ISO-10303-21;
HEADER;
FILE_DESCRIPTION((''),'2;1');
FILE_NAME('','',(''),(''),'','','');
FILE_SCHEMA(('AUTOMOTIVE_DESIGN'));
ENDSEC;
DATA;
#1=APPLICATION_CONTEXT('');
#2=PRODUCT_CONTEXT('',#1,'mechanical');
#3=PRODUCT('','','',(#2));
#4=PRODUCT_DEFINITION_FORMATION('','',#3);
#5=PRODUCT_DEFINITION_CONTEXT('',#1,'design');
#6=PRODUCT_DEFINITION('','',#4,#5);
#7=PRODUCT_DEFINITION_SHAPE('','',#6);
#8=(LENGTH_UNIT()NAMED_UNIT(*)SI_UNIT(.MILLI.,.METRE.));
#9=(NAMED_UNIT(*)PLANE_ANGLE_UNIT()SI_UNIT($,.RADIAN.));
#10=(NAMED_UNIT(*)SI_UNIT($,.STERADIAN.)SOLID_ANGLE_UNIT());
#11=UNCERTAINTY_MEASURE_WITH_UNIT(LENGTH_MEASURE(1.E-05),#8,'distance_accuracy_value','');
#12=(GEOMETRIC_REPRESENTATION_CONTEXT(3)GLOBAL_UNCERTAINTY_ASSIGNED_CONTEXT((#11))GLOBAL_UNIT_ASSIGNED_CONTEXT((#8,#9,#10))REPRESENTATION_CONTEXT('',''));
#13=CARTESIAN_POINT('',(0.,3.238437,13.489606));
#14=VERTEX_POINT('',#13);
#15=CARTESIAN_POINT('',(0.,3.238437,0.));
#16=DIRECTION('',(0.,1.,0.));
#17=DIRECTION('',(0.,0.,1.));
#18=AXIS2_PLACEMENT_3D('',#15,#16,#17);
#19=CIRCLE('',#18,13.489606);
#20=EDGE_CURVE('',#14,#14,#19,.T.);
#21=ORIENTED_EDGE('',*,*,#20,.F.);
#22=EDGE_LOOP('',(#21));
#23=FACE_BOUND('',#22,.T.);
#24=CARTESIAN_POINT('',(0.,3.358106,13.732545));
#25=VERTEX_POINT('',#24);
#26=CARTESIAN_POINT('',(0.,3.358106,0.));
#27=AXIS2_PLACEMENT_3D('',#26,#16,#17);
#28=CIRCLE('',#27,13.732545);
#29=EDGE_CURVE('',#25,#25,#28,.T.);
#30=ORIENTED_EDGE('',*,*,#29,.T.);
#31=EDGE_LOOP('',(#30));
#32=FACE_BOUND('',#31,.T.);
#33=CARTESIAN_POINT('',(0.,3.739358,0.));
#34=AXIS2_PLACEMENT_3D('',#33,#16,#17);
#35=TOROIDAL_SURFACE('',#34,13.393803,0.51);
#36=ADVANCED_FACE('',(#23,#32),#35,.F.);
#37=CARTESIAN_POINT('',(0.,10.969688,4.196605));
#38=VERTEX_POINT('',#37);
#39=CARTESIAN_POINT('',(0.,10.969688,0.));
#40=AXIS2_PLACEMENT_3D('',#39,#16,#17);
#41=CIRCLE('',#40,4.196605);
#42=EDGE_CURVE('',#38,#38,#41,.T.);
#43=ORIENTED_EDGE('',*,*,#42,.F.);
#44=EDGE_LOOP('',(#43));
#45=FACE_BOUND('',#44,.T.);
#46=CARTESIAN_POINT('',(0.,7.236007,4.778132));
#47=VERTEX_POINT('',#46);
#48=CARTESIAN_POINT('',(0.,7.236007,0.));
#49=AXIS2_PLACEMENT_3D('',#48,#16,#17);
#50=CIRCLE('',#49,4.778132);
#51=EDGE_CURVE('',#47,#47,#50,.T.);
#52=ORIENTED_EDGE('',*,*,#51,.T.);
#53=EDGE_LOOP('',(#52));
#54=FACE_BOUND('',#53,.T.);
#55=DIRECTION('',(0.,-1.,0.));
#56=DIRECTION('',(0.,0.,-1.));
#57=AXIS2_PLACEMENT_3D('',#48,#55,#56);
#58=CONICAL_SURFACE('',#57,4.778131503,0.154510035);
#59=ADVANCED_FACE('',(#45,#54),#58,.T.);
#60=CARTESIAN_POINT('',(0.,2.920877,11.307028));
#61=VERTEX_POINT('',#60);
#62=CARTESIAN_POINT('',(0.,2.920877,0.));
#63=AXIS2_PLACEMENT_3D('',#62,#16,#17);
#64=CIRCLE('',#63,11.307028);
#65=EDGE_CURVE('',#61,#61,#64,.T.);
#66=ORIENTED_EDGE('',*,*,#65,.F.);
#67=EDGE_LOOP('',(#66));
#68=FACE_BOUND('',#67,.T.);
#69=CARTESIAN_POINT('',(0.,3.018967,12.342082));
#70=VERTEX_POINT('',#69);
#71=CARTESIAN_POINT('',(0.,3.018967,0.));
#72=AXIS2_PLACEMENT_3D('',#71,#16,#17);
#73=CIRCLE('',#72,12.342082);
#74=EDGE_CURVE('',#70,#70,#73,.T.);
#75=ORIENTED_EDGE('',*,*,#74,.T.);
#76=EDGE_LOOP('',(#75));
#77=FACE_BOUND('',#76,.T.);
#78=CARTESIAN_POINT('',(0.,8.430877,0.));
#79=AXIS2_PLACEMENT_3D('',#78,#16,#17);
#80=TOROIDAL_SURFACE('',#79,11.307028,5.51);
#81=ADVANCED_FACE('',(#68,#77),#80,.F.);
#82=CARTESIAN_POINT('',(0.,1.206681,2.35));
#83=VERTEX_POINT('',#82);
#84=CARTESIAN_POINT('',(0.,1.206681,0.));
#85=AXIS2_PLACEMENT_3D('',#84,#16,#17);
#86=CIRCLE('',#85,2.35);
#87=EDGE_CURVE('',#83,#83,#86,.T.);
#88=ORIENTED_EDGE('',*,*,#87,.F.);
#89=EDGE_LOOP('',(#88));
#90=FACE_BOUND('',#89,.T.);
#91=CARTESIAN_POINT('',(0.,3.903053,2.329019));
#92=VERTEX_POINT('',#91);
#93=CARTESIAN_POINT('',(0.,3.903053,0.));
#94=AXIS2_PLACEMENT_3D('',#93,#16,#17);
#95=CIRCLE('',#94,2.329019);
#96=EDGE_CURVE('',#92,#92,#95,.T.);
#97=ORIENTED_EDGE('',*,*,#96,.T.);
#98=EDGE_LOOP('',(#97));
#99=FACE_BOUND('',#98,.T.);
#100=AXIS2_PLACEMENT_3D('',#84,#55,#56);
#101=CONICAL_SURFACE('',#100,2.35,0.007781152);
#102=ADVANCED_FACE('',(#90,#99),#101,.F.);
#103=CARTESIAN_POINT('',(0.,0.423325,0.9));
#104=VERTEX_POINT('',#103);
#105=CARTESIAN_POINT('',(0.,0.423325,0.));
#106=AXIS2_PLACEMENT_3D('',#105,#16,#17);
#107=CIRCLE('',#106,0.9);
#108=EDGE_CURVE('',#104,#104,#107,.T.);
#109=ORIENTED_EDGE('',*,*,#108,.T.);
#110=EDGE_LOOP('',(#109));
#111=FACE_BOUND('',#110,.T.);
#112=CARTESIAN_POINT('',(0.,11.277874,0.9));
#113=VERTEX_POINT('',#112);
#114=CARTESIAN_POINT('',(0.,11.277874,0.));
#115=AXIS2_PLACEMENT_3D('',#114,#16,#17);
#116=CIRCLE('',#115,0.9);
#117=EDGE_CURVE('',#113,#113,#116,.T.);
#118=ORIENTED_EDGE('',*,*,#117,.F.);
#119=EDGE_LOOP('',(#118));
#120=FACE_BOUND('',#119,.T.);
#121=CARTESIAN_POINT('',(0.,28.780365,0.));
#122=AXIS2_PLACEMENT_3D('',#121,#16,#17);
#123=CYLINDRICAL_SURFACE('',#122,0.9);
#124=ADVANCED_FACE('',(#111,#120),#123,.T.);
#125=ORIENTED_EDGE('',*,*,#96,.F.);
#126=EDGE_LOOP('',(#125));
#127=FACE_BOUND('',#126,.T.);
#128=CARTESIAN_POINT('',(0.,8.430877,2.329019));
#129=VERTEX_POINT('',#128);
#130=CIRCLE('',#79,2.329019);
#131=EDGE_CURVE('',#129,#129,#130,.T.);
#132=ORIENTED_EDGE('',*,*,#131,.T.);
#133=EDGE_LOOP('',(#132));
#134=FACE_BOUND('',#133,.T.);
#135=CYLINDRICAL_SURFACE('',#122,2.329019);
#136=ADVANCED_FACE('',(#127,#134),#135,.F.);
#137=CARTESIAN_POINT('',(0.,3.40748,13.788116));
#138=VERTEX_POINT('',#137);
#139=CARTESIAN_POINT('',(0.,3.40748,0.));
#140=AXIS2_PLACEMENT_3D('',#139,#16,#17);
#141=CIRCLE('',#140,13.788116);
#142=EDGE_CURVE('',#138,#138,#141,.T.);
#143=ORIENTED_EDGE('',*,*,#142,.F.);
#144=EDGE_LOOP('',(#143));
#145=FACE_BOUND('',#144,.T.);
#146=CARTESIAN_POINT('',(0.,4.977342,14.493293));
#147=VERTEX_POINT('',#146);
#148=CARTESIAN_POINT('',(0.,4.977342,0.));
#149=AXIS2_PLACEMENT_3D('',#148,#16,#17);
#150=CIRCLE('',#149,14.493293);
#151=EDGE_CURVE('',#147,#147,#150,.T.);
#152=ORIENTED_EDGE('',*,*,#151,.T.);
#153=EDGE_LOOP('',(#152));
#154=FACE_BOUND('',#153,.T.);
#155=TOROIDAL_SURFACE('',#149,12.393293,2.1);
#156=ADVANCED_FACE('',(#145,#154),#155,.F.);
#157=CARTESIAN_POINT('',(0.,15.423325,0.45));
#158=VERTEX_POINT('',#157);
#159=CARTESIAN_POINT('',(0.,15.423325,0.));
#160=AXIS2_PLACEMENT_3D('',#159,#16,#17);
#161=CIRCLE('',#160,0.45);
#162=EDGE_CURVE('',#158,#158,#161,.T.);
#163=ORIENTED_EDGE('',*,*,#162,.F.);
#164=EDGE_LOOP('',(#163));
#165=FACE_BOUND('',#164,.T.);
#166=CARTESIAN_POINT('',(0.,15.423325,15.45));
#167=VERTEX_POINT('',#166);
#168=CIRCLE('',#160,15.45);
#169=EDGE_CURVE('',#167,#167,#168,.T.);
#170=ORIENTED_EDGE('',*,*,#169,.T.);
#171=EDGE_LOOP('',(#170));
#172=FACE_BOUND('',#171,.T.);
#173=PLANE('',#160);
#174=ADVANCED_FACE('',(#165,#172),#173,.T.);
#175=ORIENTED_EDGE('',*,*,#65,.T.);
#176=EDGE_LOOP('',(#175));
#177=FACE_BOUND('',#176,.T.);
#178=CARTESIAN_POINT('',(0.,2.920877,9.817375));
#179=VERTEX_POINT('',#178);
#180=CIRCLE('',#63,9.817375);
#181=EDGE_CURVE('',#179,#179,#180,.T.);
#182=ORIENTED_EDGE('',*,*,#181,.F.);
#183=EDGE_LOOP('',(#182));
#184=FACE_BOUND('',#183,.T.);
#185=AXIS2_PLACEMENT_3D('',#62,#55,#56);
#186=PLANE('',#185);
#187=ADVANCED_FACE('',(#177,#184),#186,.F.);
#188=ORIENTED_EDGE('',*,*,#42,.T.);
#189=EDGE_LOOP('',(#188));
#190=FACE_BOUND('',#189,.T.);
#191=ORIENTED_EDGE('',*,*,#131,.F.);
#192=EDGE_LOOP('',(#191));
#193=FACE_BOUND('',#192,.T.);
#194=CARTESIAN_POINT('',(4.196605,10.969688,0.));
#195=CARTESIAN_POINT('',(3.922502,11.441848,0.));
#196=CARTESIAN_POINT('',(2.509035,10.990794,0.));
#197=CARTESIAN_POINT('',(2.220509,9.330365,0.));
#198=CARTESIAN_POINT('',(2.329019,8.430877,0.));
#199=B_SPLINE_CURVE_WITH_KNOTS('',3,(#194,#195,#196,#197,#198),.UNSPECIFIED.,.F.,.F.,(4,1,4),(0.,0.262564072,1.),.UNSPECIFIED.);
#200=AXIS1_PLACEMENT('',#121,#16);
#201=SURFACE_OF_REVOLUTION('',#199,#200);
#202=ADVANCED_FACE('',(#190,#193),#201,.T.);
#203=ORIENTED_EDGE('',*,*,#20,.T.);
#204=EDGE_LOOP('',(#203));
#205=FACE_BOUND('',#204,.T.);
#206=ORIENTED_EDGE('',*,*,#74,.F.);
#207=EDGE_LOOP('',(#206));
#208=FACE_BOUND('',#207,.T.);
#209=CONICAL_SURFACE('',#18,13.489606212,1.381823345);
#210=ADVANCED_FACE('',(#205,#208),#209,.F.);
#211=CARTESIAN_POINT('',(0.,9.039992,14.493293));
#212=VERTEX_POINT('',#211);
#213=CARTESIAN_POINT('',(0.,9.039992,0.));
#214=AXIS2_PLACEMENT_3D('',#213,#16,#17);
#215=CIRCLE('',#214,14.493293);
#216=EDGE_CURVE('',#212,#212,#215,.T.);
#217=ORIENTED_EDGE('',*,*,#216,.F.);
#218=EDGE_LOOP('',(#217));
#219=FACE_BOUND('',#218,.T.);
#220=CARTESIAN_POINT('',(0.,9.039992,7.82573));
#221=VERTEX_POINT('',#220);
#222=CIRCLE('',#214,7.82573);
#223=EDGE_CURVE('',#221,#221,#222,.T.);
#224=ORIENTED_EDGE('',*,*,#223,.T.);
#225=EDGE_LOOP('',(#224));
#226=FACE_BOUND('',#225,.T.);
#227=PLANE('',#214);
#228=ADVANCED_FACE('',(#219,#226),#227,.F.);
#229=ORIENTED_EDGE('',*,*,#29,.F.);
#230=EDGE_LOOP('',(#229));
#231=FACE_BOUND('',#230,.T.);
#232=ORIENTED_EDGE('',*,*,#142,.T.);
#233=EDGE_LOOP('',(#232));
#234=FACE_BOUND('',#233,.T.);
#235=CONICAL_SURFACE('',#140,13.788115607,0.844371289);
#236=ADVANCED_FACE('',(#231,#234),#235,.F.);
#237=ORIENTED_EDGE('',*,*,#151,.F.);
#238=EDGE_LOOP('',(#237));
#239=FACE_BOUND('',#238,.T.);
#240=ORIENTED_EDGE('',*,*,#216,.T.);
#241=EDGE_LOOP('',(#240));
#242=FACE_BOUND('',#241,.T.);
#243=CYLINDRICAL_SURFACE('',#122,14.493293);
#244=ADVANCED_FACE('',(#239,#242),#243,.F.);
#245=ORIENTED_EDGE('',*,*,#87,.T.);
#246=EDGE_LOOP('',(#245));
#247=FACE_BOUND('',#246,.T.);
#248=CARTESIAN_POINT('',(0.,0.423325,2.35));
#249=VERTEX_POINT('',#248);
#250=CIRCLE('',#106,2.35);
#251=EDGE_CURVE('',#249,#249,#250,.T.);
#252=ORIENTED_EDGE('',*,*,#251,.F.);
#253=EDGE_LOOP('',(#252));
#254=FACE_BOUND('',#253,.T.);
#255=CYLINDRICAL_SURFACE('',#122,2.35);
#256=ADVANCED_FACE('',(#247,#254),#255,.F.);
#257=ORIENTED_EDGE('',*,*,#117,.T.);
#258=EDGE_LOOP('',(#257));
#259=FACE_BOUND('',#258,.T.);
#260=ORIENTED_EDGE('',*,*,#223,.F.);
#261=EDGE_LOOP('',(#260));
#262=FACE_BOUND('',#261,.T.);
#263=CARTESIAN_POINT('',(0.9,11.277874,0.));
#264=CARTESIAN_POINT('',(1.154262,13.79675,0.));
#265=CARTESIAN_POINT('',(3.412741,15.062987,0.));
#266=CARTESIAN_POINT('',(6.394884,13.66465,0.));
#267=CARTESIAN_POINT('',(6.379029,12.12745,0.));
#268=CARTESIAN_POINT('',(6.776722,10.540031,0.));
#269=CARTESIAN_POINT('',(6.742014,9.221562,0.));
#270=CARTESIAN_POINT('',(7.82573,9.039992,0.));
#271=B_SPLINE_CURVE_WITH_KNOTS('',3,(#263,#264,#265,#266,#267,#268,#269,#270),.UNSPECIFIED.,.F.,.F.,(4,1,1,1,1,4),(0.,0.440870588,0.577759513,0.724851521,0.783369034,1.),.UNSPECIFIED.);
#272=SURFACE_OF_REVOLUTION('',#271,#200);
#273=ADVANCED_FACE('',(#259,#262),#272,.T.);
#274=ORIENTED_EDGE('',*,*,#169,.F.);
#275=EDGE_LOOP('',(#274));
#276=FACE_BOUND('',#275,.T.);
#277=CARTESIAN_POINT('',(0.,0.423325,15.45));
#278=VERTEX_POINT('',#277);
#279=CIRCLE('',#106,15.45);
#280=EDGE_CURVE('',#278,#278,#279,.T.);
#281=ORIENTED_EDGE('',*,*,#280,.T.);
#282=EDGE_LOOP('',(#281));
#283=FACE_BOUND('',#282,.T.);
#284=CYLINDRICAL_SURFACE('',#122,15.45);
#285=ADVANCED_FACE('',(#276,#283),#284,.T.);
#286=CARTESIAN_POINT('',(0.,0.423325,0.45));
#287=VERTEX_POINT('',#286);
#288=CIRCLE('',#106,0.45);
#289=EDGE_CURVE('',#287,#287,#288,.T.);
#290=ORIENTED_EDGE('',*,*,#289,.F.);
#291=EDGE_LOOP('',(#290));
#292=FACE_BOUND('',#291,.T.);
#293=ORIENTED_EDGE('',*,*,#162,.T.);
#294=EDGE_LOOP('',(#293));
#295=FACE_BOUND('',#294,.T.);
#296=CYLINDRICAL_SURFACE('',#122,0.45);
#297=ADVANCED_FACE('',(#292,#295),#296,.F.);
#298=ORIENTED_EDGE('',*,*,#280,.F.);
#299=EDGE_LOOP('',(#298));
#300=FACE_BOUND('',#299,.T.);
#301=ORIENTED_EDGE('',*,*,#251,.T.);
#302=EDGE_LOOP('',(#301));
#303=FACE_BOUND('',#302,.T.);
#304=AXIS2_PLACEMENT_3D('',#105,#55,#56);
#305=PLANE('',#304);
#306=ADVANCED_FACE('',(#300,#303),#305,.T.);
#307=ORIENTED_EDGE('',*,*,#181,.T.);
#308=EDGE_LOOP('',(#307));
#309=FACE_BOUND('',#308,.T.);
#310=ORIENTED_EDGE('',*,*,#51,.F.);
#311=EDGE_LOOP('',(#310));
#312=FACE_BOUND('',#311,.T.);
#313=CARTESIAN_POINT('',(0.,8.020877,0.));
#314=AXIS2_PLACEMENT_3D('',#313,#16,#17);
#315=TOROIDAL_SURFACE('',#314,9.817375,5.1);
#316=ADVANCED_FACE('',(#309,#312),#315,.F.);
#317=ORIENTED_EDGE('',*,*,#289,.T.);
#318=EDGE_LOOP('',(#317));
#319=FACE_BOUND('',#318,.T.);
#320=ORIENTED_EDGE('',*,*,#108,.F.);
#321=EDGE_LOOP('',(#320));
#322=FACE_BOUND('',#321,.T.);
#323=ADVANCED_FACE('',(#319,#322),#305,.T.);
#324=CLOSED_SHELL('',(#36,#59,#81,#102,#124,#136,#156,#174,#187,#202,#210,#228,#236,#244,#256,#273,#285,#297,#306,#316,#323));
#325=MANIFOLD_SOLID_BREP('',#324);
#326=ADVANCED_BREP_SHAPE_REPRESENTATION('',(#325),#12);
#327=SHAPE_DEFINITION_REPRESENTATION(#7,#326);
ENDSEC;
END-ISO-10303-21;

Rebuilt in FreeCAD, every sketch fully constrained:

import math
import FreeCAD as App
import Part
import Sketcher
Q = App.Units.Quantity

doc = App.newDocument("Part")
body = doc.addObject("PartDesign::Body", "Body")

sketch1 = doc.addObject("Sketcher::SketchObject", "Sketch")
body.addObject(sketch1)
sketch1.AttachmentSupport = (doc.XY_Plane, [""])
sketch1.MapMode = "FlatFace"
sketch1.addGeometry(Part.LineSegment(App.Vector(0.45, 15.423325, 0), App.Vector(0.45, 0.423325, 0)), False)
sketch1.addGeometry(Part.LineSegment(App.Vector(0.45, 0.423325, 0), App.Vector(0.9, 0.423325, 0)), False)
sketch1.addGeometry(Part.LineSegment(App.Vector(0.9, 0.423325, 0), App.Vector(0.9, 11.277874, 0)), False)
sketch1.addGeometry(Part.BSplineCurve([App.Vector(0.9, 11.277874, 0), App.Vector(1.154262, 13.79675, 0), App.Vector(3.412741, 15.062987, 0), App.Vector(6.394884, 13.66465, 0), App.Vector(6.379029, 12.12745, 0), App.Vector(6.776722, 10.540031, 0), App.Vector(6.742014, 9.221562, 0), App.Vector(7.82573, 9.039992, 0)], [4, 1, 1, 1, 1, 4], [0, 0.440870588, 0.577759513, 0.724851521, 0.783369034, 1], False, 3, [1, 1, 1, 1, 1, 1, 1, 1], False), False)
sketch1.addGeometry(Part.LineSegment(App.Vector(7.82573, 9.039992, 0), App.Vector(14.493293, 9.039992, 0)), False)
sketch1.addGeometry(Part.LineSegment(App.Vector(14.493293, 9.039992, 0), App.Vector(14.493293, 4.977342, 0)), False)
sketch1.addGeometry(Part.ArcOfCircle(Part.Circle(App.Vector(12.393293, 4.977342, 0), App.Vector(0, 0, 1), 2.1), math.radians(-48.378911), math.radians(0)), False)
sketch1.addGeometry(Part.LineSegment(App.Vector(13.788116, 3.40748, 0), App.Vector(13.732545, 3.358106, 0)), False)
sketch1.addGeometry(Part.ArcOfCircle(Part.Circle(App.Vector(13.393803, 3.739358, 0), App.Vector(0, 0, 1), 0.51), math.radians(-79.172646), math.radians(-48.378911)), False)
sketch1.addGeometry(Part.LineSegment(App.Vector(13.489606, 3.238437, 0), App.Vector(12.342082, 3.018967, 0)), False)
sketch1.addGeometry(Part.ArcOfCircle(Part.Circle(App.Vector(11.307028, 8.430877, 0), App.Vector(0, 0, 1), 5.51), math.radians(-90), math.radians(-79.172646)), False)
sketch1.addGeometry(Part.LineSegment(App.Vector(11.307028, 2.920877, 0), App.Vector(9.817375, 2.920877, 0)), False)
sketch1.addGeometry(Part.ArcOfCircle(Part.Circle(App.Vector(9.817375, 8.020877, 0), App.Vector(0, 0, 1), 5.1), math.radians(-171.147227), math.radians(-90)), False)
sketch1.addGeometry(Part.LineSegment(App.Vector(4.778132, 7.236007, 0), App.Vector(4.196605, 10.969688, 0)), False)
sketch1.addGeometry(Part.BSplineCurve([App.Vector(4.196605, 10.969688, 0), App.Vector(3.922502, 11.441848, 0), App.Vector(2.509035, 10.990794, 0), App.Vector(2.220509, 9.330365, 0), App.Vector(2.329019, 8.430877, 0)], [4, 1, 4], [0, 0.262564072, 1], False, 3, [1, 1, 1, 1, 1], False), False)
sketch1.addGeometry(Part.LineSegment(App.Vector(2.329019, 8.430877, 0), App.Vector(2.329019, 3.903053, 0)), False)
sketch1.addGeometry(Part.LineSegment(App.Vector(2.329019, 3.903053, 0), App.Vector(2.35, 1.206681, 0)), False)
sketch1.addGeometry(Part.LineSegment(App.Vector(2.35, 1.206681, 0), App.Vector(2.35, 0.423325, 0)), False)
sketch1.addGeometry(Part.LineSegment(App.Vector(2.35, 0.423325, 0), App.Vector(15.45, 0.423325, 0)), False)
sketch1.addGeometry(Part.LineSegment(App.Vector(15.45, 0.423325, 0), App.Vector(15.45, 15.423325, 0)), False)
sketch1.addGeometry(Part.LineSegment(App.Vector(15.45, 15.423325, 0), App.Vector(0.45, 15.423325, 0)), False)
sketch1.addConstraint(Sketcher.Constraint("Block", 3))
sketch1.addConstraint(Sketcher.Constraint("Block", 14))
sketch1.addConstraint(Sketcher.Constraint("Coincident", 0, 2, 1, 1))
sketch1.addConstraint(Sketcher.Constraint("Coincident", 1, 2, 2, 1))
sketch1.addConstraint(Sketcher.Constraint("Coincident", 2, 2, 3, 1))
sketch1.addConstraint(Sketcher.Constraint("Coincident", 3, 2, 4, 1))
sketch1.addConstraint(Sketcher.Constraint("Coincident", 4, 2, 5, 1))
sketch1.addConstraint(Sketcher.Constraint("Tangent", 5, 2, 6, 2))
sketch1.addConstraint(Sketcher.Constraint("Tangent", 6, 1, 7, 1))
sketch1.addConstraint(Sketcher.Constraint("Tangent", 7, 2, 8, 2))
sketch1.addConstraint(Sketcher.Constraint("Tangent", 8, 1, 9, 1))
sketch1.addConstraint(Sketcher.Constraint("Tangent", 9, 2, 10, 2))
sketch1.addConstraint(Sketcher.Constraint("Tangent", 10, 1, 11, 1))
sketch1.addConstraint(Sketcher.Constraint("Tangent", 11, 2, 12, 2))
sketch1.addConstraint(Sketcher.Constraint("Tangent", 12, 1, 13, 1))
sketch1.addConstraint(Sketcher.Constraint("Coincident", 13, 2, 14, 1))
sketch1.addConstraint(Sketcher.Constraint("Coincident", 14, 2, 15, 1))
sketch1.addConstraint(Sketcher.Constraint("Coincident", 15, 2, 16, 1))
sketch1.addConstraint(Sketcher.Constraint("Coincident", 16, 2, 17, 1))
sketch1.addConstraint(Sketcher.Constraint("Coincident", 17, 2, 18, 1))
sketch1.addConstraint(Sketcher.Constraint("Coincident", 18, 2, 19, 1))
sketch1.addConstraint(Sketcher.Constraint("Coincident", 19, 2, 20, 1))
sketch1.addConstraint(Sketcher.Constraint("Coincident", 20, 2, 0, 1))
sketch1.addConstraint(Sketcher.Constraint("Vertical", 0))
sketch1.addConstraint(Sketcher.Constraint("Horizontal", 1))
sketch1.addConstraint(Sketcher.Constraint("Vertical", 2))
sketch1.addConstraint(Sketcher.Constraint("Horizontal", 4))
sketch1.addConstraint(Sketcher.Constraint("Vertical", 5))
sketch1.addConstraint(Sketcher.Constraint("Horizontal", 11))
sketch1.addConstraint(Sketcher.Constraint("Vertical", 15))
sketch1.addConstraint(Sketcher.Constraint("Vertical", 17))
sketch1.addConstraint(Sketcher.Constraint("Horizontal", 18))
sketch1.addConstraint(Sketcher.Constraint("Vertical", 19))
sketch1.addConstraint(Sketcher.Constraint("Horizontal", 20))
sketch1.addConstraint(Sketcher.Constraint("Horizontal", 1, 2, 17, 2))
sketch1.addConstraint(Sketcher.Constraint("Equal", 20, 0))
sketch1.addConstraint(Sketcher.Constraint("Radius", 6, Q("2.1 mm")))
sketch1.addConstraint(Sketcher.Constraint("Radius", 12, Q("5.1 mm")))
sketch1.addConstraint(Sketcher.Constraint("DistanceX", 20, 2, 20, 1, Q("15 mm")))
sketch1.addConstraint(Sketcher.Constraint("Radius", 8, Q("0.51 mm")))
sketch1.addConstraint(Sketcher.Constraint("Radius", 10, Q("5.51 mm")))
sketch1.addConstraint(Sketcher.Constraint("DistanceX", 18, 1, 18, 2, Q("13.1 mm")))
sketch1.addConstraint(Sketcher.Constraint("DistanceX", 1, 1, 1, 2, Q("0.45 mm")))
sketch1.addConstraint(Sketcher.Constraint("DistanceY", 2, 1, 2, 2, Q("10.854549 mm")))
sketch1.addConstraint(Sketcher.Constraint("DistanceY", 5, 2, 5, 1, Q("4.06265 mm")))
sketch1.addConstraint(Sketcher.Constraint("DistanceX", 4, 1, 4, 2, Q("6.667563 mm")))
sketch1.addConstraint(Sketcher.Constraint("DistanceX", 11, 2, 11, 1, Q("1.489652 mm")))
sketch1.addConstraint(Sketcher.Constraint("DistanceY", 15, 2, 15, 1, Q("4.527823 mm")))
sketch1.addConstraint(Sketcher.Constraint("DistanceY", 17, 2, 17, 1, Q("0.783355 mm")))
sketch1.addConstraint(Sketcher.Constraint("DistanceY", -1, 1, 6, 1, Q("3.40748 mm")))
sketch1.addConstraint(Sketcher.Constraint("DistanceX", -1, 1, 12, 1, Q("4.778132 mm")))
sketch1.addConstraint(Sketcher.Constraint("DistanceX", 6, 3, 8, 3, Q("1.00051 mm")))
sketch1.addConstraint(Sketcher.Constraint("DistanceY", 8, 3, 10, 3, Q("4.691519 mm")))
revolution = doc.addObject("PartDesign::Revolution", "Revolution")
body.addObject(revolution)
revolution.Profile = sketch1
revolution.ReferenceAxis = (sketch1, ["V_Axis"])
revolution.Angle = 360

doc.recompute()
